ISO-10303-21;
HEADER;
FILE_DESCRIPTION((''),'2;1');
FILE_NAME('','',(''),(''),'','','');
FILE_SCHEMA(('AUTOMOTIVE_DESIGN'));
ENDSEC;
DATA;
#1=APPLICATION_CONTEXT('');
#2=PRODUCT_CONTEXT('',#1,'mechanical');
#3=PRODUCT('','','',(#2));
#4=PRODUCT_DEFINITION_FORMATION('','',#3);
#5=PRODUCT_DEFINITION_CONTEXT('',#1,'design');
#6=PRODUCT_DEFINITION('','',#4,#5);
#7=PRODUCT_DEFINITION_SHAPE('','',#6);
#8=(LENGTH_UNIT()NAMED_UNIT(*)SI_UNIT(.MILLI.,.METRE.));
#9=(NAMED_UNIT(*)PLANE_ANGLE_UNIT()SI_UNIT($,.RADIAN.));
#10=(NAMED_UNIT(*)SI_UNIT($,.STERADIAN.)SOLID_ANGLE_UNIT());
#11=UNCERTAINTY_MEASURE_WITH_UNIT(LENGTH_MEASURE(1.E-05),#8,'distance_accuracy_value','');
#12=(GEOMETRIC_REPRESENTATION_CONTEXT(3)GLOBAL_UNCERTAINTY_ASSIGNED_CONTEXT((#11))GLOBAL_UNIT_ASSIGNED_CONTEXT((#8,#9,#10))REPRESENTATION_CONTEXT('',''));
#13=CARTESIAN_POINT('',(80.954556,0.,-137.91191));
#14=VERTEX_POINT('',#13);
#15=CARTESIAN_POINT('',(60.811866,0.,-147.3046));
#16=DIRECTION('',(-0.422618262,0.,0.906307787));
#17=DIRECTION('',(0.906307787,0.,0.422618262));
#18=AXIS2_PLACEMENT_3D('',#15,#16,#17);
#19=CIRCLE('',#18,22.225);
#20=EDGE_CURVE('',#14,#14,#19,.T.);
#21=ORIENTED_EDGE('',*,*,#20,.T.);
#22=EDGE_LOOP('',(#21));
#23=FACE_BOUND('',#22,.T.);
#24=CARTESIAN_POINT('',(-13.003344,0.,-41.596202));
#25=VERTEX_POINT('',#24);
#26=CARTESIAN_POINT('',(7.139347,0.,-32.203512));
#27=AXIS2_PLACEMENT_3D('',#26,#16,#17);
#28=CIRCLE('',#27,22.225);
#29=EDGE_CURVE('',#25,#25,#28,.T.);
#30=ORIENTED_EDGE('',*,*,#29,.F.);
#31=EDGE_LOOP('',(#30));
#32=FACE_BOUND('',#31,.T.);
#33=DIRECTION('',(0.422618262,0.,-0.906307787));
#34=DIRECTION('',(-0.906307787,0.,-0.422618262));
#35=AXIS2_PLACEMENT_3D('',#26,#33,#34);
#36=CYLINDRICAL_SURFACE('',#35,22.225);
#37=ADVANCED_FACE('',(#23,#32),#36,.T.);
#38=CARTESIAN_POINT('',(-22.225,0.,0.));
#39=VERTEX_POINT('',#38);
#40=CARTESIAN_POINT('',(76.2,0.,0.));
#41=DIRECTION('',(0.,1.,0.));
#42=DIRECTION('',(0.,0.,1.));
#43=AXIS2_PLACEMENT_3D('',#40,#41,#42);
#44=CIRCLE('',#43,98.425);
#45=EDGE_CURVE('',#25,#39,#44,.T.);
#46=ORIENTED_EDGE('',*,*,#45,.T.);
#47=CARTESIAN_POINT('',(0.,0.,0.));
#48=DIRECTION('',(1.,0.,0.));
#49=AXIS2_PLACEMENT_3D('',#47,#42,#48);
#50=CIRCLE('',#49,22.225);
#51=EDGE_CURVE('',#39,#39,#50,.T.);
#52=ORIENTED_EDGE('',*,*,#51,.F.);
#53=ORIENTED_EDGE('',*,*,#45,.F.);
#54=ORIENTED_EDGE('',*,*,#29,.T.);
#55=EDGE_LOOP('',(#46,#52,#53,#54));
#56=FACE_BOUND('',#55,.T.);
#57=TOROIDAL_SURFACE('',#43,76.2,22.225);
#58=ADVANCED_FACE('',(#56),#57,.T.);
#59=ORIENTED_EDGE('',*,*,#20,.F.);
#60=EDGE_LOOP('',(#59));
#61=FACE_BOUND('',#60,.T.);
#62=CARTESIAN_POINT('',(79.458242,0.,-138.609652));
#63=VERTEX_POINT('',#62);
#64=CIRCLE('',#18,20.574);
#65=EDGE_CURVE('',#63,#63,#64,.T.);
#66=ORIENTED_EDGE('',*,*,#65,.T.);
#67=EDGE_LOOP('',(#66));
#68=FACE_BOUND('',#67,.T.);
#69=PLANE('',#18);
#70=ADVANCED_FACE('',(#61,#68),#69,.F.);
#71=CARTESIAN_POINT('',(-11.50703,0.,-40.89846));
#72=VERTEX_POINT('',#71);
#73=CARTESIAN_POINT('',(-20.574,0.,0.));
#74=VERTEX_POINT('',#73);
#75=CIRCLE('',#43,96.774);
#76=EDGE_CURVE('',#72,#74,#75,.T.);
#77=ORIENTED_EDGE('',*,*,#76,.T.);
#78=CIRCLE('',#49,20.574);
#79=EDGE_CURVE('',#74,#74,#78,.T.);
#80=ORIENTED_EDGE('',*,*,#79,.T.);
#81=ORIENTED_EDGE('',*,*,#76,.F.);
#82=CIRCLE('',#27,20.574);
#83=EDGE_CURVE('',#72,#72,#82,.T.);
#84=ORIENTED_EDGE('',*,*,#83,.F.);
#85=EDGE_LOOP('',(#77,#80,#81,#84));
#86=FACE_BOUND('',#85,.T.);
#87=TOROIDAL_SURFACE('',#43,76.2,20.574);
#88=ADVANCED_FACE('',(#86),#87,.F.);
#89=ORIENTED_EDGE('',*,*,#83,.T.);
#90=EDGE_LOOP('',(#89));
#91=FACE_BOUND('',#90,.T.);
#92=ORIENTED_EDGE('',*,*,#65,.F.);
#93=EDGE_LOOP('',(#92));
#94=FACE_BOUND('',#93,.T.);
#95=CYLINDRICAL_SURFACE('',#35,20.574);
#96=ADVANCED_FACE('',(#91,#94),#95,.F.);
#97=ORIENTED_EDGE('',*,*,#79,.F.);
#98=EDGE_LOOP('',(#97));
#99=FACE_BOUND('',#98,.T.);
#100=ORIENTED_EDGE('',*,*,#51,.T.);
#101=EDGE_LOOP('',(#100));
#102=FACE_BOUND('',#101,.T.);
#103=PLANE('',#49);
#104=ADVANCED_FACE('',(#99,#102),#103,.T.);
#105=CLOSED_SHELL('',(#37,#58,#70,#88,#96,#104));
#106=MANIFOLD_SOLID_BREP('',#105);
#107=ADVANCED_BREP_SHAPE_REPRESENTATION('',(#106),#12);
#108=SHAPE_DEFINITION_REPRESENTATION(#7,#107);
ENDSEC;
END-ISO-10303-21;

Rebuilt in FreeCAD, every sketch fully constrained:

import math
import FreeCAD as App
import Part
import Sketcher

V = App.Vector
Q = App.Units.Quantity

doc = App.newDocument("Part")
body = doc.addObject("PartDesign::Body", "Body")

# Sketch on XY plane
sketch1 = doc.addObject("Sketcher::SketchObject", "Sketch")
body.addObject(sketch1)
sketch1.AttachmentSupport = (doc.XY_Plane, [""])
sketch1.MapMode = "FlatFace"
sketch1.addGeometry([
    Part.Circle(V(0, 0, 0), V(0, 0, 1), 22),
    Part.Circle(V(0, 0, 0), V(0, 0, 1), 21),
], False)
sketch1.addConstraint([
    Sketcher.Constraint("Coincident", 0, 3, -1, 1),
    Sketcher.Constraint("Coincident", 1, 3, -1, 1),
    Sketcher.Constraint("Diameter", 0, Q("1.75 in")),
    Sketcher.Constraint("Diameter", 1, Q("1.62 in")),
])

# Sketch on XZ plane
sketch2 = doc.addObject("Sketcher::SketchObject", "Sketch001")
body.addObject(sketch2)
sketch2.AttachmentSupport = (doc.XZ_Plane, [""])
sketch2.MapMode = "FlatFace"
sketch2.addGeometry([
    Part.LineSegment(V(61, -147, 0), V(7, -32, 0)),
    Part.ArcOfCircle(Part.Circle(V(76, 0, 0), V(0, 0, 1), 76), math.radians(180), math.radians(205)),
], False)
sketch2.addConstraint([
    Sketcher.Constraint("Tangent", 0, 2, 1, 2),
    Sketcher.Constraint("Coincident", 1, 1, -1, 1),
    Sketcher.Constraint("PointOnObject", 1, 3, -1),
    Sketcher.Constraint("Radius", 1, Q("3 in")),
    Sketcher.Constraint("Distance", 0, Q("5 in")),
    Sketcher.Constraint("Angle", 0, Q("115 deg")),
])
doc.recompute()

additivepipe = doc.addObject("PartDesign::AdditivePipe", "AdditivePipe")
body.addObject(additivepipe)
additivepipe.Profile = sketch1
additivepipe.Spine = (sketch2, ["Edge1", "Edge2"])

doc.recompute()
